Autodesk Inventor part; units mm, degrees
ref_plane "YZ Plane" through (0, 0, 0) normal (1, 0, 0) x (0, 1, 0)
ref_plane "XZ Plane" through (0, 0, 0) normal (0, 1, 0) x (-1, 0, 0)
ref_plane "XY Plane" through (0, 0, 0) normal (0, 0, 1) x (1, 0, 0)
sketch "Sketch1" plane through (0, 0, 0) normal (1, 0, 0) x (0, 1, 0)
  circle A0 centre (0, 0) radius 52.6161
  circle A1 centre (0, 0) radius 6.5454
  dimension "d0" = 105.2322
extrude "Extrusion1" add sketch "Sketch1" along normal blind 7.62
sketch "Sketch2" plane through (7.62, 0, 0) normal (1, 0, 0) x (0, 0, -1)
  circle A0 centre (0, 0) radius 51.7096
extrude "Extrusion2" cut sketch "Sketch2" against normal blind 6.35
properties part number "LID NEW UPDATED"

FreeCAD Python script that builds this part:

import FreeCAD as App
import Part
import Sketcher
from FreeCAD import Vector
Q = App.Units.Quantity

doc = App.newDocument("Part")
body = doc.addObject("PartDesign::Body", "Body")

sketch1 = doc.addObject("Sketcher::SketchObject", "Sketch")
body.addObject(sketch1)
sketch1.AttachmentSupport = (doc.YZ_Plane, [""])
sketch1.MapMode = "FlatFace"
sketch1.addGeometry(Part.Circle(Vector(0, 0, 0), Vector(0, 0, 1), 53), False)
sketch1.addGeometry(Part.Circle(Vector(0, 0, 0), Vector(0, 0, 1), 7), False)
sketch1.addConstraint(Sketcher.Constraint("Coincident", 0, 3, -1, 1))
sketch1.addConstraint(Sketcher.Constraint("Coincident", 1, 3, -1, 1))
sketch1.addConstraint(Sketcher.Constraint("Diameter", 0, Q("4.143 in")))
sketch1.addConstraint(Sketcher.Constraint("Diameter", 1, Q("13.0908 mm")))
pad1 = doc.addObject("PartDesign::Pad", "Pad")
body.addObject(pad1)
pad1.Profile = sketch1
pad1.Length = Q("0.3 in")

sketch2 = doc.addObject("Sketcher::SketchObject", "Sketch001")
body.addObject(sketch2)
sketch2.AttachmentSupport = (doc.YZ_Plane, [""])
sketch2.MapMode = "FlatFace"
sketch2.AttachmentOffset = App.Placement(Vector(0, 0, 0.3 * 25.4), App.Rotation())
sketch2.addGeometry(Part.Circle(Vector(0, 0, 0), Vector(0, 0, 1), 52), False)
sketch2.addConstraint(Sketcher.Constraint("Coincident", 0, 3, -1, 1))
sketch2.addConstraint(Sketcher.Constraint("Diameter", 0, Q("103.4192 mm")))
pocket1 = doc.addObject("PartDesign::Pocket", "Pocket")
body.addObject(pocket1)
pocket1.Profile = sketch2
pocket1.Length = Q("0.25 in")

doc.recompute()
